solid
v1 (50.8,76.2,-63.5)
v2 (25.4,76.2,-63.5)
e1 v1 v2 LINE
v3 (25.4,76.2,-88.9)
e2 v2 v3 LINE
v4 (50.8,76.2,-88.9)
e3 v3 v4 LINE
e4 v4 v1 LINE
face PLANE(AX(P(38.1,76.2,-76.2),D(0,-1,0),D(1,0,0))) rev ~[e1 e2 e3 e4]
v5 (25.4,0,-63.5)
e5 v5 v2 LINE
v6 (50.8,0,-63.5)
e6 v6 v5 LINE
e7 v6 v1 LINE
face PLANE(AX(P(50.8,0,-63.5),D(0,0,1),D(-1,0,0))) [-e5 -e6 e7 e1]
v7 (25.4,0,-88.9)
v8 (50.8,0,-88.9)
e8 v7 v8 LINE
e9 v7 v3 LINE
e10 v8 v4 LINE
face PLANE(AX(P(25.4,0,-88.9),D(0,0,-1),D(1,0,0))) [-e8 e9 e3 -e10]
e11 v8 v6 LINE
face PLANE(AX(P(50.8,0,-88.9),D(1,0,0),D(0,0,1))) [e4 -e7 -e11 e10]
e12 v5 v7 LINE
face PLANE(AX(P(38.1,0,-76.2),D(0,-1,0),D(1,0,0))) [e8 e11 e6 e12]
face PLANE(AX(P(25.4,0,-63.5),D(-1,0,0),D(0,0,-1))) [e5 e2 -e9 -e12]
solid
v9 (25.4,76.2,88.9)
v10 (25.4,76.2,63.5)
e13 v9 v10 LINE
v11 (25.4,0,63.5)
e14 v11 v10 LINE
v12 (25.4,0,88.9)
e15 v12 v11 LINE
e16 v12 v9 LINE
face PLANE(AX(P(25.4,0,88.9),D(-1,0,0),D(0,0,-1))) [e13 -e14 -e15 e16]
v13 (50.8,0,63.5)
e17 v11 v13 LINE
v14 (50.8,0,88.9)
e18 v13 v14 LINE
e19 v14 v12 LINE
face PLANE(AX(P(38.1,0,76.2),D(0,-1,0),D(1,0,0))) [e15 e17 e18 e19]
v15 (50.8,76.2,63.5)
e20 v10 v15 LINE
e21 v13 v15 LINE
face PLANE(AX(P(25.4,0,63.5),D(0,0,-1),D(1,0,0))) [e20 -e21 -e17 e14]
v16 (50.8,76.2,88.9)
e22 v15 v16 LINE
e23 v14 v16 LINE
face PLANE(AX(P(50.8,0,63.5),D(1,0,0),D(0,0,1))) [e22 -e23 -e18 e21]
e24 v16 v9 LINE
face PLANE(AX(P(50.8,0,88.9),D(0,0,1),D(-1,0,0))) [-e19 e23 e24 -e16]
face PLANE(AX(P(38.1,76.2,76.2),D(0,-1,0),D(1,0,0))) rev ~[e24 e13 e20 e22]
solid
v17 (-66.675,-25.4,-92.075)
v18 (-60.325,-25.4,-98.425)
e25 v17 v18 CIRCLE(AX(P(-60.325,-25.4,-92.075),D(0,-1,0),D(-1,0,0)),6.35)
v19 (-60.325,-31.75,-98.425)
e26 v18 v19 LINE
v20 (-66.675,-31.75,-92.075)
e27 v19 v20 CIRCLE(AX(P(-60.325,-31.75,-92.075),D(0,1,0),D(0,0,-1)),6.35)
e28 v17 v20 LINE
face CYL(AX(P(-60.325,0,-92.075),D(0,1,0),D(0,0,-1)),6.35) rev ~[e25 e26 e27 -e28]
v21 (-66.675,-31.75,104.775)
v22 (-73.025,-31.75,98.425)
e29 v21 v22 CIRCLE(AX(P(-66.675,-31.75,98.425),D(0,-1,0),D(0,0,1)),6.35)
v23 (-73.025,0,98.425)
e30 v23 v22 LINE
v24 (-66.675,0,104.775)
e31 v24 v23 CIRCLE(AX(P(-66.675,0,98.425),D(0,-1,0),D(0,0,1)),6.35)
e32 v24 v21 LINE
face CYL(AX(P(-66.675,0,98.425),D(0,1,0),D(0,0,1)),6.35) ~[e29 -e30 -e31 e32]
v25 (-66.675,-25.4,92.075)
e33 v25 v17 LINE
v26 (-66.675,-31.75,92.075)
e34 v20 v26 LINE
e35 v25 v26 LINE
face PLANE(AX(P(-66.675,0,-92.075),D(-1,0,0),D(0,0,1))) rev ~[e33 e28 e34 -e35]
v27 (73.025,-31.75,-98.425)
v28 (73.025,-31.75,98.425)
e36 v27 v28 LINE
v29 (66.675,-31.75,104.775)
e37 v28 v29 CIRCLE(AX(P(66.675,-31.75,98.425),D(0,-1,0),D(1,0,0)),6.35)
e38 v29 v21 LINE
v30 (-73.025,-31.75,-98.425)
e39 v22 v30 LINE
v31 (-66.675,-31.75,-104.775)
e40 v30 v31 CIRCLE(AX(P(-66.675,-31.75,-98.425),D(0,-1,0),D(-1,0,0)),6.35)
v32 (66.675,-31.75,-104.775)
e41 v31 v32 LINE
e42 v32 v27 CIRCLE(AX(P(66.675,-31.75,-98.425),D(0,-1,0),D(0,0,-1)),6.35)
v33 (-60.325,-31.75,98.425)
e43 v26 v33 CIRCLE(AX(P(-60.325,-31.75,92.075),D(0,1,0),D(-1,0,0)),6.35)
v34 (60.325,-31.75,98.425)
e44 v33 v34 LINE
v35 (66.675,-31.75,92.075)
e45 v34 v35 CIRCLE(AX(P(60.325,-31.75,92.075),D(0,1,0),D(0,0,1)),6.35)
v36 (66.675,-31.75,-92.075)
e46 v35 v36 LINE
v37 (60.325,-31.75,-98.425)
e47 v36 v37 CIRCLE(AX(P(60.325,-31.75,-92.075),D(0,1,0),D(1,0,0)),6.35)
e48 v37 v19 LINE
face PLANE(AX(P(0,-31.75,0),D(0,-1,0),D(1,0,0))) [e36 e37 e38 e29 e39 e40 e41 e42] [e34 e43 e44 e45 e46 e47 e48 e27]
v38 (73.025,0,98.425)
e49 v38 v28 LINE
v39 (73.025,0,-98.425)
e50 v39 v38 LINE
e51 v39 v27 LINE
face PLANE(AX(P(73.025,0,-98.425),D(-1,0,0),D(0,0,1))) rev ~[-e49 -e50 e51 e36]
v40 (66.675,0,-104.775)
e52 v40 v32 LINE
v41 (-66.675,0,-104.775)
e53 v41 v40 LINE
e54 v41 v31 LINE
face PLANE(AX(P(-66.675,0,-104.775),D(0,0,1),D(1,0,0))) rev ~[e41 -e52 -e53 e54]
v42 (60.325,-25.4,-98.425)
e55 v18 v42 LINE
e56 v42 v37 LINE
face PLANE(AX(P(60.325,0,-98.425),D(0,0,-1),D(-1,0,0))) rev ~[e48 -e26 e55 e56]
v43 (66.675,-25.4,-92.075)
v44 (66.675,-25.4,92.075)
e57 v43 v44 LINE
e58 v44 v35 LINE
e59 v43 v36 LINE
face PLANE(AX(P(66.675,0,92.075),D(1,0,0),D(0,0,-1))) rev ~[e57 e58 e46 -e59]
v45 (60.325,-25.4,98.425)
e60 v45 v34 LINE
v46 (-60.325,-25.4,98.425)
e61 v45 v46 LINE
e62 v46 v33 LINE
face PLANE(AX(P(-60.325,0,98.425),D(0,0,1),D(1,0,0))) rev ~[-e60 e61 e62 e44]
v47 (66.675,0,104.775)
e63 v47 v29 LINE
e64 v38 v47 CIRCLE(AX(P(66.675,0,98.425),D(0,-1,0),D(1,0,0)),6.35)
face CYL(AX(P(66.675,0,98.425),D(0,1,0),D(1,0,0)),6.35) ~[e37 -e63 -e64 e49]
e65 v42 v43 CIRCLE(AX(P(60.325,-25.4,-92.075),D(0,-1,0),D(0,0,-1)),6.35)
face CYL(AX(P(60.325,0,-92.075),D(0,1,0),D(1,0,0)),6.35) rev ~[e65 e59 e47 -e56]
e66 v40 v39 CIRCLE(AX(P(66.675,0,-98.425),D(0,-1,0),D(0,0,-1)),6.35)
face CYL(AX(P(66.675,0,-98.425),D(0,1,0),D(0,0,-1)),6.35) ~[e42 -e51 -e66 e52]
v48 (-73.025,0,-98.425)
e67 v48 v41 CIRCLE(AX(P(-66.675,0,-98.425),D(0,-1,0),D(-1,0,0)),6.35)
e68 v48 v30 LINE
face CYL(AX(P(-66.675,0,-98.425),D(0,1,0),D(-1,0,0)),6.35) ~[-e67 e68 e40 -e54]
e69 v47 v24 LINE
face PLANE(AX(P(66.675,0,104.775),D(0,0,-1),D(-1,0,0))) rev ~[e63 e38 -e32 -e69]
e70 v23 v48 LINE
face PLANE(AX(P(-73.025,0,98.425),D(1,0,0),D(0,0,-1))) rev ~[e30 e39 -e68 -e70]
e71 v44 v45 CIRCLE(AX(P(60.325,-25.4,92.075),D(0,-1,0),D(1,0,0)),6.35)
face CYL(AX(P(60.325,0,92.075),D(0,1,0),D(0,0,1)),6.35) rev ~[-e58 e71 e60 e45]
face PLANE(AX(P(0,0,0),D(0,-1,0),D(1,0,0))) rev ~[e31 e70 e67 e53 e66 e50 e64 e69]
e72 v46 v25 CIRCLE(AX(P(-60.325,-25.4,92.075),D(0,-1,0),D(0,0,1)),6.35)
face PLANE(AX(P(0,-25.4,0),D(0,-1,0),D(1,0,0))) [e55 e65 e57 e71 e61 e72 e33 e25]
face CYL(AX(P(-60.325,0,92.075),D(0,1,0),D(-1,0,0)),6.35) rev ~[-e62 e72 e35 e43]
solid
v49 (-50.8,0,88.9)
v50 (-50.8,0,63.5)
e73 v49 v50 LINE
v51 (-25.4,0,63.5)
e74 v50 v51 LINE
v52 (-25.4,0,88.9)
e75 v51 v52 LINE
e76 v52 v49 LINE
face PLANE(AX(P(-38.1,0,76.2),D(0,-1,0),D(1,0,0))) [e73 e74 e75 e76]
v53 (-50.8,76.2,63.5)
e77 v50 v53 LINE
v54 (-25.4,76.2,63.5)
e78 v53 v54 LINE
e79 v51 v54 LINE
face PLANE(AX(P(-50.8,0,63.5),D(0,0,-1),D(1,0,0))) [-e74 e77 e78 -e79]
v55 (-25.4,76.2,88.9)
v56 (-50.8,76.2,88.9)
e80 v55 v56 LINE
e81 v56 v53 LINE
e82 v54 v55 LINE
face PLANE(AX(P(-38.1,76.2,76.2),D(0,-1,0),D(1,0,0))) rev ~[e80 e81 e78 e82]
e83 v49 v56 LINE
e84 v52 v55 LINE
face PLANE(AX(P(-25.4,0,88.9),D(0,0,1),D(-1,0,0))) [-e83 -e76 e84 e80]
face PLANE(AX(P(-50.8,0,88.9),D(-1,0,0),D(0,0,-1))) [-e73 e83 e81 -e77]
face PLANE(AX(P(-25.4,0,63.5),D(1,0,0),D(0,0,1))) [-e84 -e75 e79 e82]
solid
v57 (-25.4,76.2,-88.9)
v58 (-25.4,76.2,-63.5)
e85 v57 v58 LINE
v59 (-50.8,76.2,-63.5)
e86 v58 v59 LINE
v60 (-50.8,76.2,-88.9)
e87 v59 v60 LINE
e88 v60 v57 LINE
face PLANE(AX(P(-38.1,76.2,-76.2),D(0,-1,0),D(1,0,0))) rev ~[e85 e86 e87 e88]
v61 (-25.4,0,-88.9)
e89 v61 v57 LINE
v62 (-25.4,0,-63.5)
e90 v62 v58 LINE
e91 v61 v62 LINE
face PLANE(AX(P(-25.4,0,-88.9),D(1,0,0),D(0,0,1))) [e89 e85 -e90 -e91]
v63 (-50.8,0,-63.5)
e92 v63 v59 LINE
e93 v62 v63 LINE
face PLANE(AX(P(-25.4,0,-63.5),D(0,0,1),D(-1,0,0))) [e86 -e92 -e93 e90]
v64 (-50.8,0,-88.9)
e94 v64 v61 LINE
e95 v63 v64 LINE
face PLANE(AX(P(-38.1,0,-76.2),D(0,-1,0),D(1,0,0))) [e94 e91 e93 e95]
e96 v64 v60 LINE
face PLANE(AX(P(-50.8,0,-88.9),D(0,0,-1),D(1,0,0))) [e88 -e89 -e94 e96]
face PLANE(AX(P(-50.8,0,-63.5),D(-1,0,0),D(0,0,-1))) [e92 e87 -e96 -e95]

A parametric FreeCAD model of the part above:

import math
import FreeCAD as App
import Part
import Sketcher
Q = App.Units.Quantity

doc = App.newDocument("Part")
body = doc.addObject("PartDesign::Body", "Body")

sketch1 = body.newObject("Sketcher::SketchObject", "Sketch")
sketch1.AttachmentSupport = (doc.getObject("XZ_Plane"), [""])
sketch1.MapMode = "FlatFace"
sketch1.addGeometry([
    Part.ArcOfCircle(Part.Circle(App.Vector(60.325, 92.075, 0), App.Vector(0, 0, 1), 6.35), math.radians(0), math.radians(90)),
    Part.LineSegment(App.Vector(60.325, 98.425, 0), App.Vector(-60.325, 98.425, 0)),
    Part.ArcOfCircle(Part.Circle(App.Vector(-60.325, 92.075, 0), App.Vector(0, 0, 1), 6.35), math.radians(90), math.radians(180)),
    Part.LineSegment(App.Vector(-66.675, 92.075, 0), App.Vector(-66.675, -92.075, 0)),
    Part.ArcOfCircle(Part.Circle(App.Vector(-60.325, -92.075, 0), App.Vector(0, 0, 1), 6.35), math.radians(180), math.radians(270)),
    Part.LineSegment(App.Vector(-60.325, -98.425, 0), App.Vector(60.325, -98.425, 0)),
    Part.ArcOfCircle(Part.Circle(App.Vector(60.325, -92.075, 0), App.Vector(0, 0, 1), 6.35), math.radians(-90), math.radians(0)),
    Part.LineSegment(App.Vector(66.675, -92.075, 0), App.Vector(66.675, 92.075, 0)),
], False)
sketch1.addConstraint([
    Sketcher.Constraint("Tangent", 0, 2, 1, 1),
    Sketcher.Constraint("Tangent", 1, 2, 2, 1),
    Sketcher.Constraint("Tangent", 2, 2, 3, 1),
    Sketcher.Constraint("Tangent", 3, 2, 4, 1),
    Sketcher.Constraint("Tangent", 4, 2, 5, 1),
    Sketcher.Constraint("Tangent", 5, 2, 6, 1),
    Sketcher.Constraint("Tangent", 6, 2, 7, 1),
    Sketcher.Constraint("Tangent", 7, 2, 0, 1),
    Sketcher.Constraint("Horizontal", 1),
    Sketcher.Constraint("Vertical", 3),
    Sketcher.Constraint("Horizontal", 5),
    Sketcher.Constraint("Vertical", 7),
    Sketcher.Constraint("Equal", 0, 2),
    Sketcher.Constraint("Equal", 2, 4),
    Sketcher.Constraint("Equal", 4, 6),
    Sketcher.Constraint("Symmetric", 0, 3, 4, 3, -1, 1),
    Sketcher.Constraint("Radius", 0, Q("0.25 in")),
    Sketcher.Constraint("DistanceX", 2, 2, 0, 3, Q("5 in")),
    Sketcher.Constraint("DistanceY", 3, 2, 3, 1, Q("7.25 in")),
])
pad1 = body.newObject("PartDesign::Pad", "Pad")
pad1.Profile = sketch1
pad1.Length = Q("1 in")

sketch2 = body.newObject("Sketcher::SketchObject", "Sketch001")
sketch2.AttachmentSupport = (doc.getObject("XZ_Plane"), [""])
sketch2.MapMode = "FlatFace"
sketch2.addGeometry([
    Part.ArcOfCircle(Part.Circle(App.Vector(-66.675, -98.425, 0), App.Vector(0, 0, 1), 6.35), math.radians(180), math.radians(270)),
    Part.LineSegment(App.Vector(-66.675, -104.775, 0), App.Vector(66.675, -104.775, 0)),
    Part.ArcOfCircle(Part.Circle(App.Vector(66.675, -98.425, 0), App.Vector(0, 0, 1), 6.35), math.radians(-90), math.radians(0)),
    Part.LineSegment(App.Vector(73.025, -98.425, 0), App.Vector(73.025, 98.425, 0)),
    Part.ArcOfCircle(Part.Circle(App.Vector(66.675, 98.425, 0), App.Vector(0, 0, 1), 6.35), math.radians(0), math.radians(90)),
    Part.LineSegment(App.Vector(66.675, 104.775, 0), App.Vector(-66.675, 104.775, 0)),
    Part.ArcOfCircle(Part.Circle(App.Vector(-66.675, 98.425, 0), App.Vector(0, 0, 1), 6.35), math.radians(90), math.radians(180)),
    Part.LineSegment(App.Vector(-73.025, 98.425, 0), App.Vector(-73.025, -98.425, 0)),
    Part.ArcOfCircle(Part.Circle(App.Vector(-60.325, 92.075, 0), App.Vector(0, 0, 1), 6.35), math.radians(90), math.radians(180)),
    Part.LineSegment(App.Vector(-60.325, 98.425, 0), App.Vector(60.325, 98.425, 0)),
    Part.ArcOfCircle(Part.Circle(App.Vector(60.325, 92.075, 0), App.Vector(0, 0, 1), 6.35), math.radians(0), math.radians(90)),
    Part.LineSegment(App.Vector(66.675, 92.075, 0), App.Vector(66.675, -92.075, 0)),
    Part.ArcOfCircle(Part.Circle(App.Vector(60.325, -92.075, 0), App.Vector(0, 0, 1), 6.35), math.radians(-90), math.radians(0)),
    Part.LineSegment(App.Vector(60.325, -98.425, 0), App.Vector(-60.325, -98.425, 0)),
    Part.ArcOfCircle(Part.Circle(App.Vector(-60.325, -92.075, 0), App.Vector(0, 0, 1), 6.35), math.radians(180), math.radians(270)),
    Part.LineSegment(App.Vector(-66.675, -92.075, 0), App.Vector(-66.675, 92.075, 0)),
], False)
sketch2.addConstraint([
    Sketcher.Constraint("Tangent", 0, 2, 1, 1),
    Sketcher.Constraint("Tangent", 1, 2, 2, 1),
    Sketcher.Constraint("Tangent", 2, 2, 3, 1),
    Sketcher.Constraint("Tangent", 3, 2, 4, 1),
    Sketcher.Constraint("Tangent", 4, 2, 5, 1),
    Sketcher.Constraint("Tangent", 5, 2, 6, 1),
    Sketcher.Constraint("Tangent", 6, 2, 7, 1),
    Sketcher.Constraint("Tangent", 7, 2, 0, 1),
    Sketcher.Constraint("Tangent", 8, 1, 9, 1),
    Sketcher.Constraint("Tangent", 9, 2, 10, 2),
    Sketcher.Constraint("Tangent", 10, 1, 11, 1),
    Sketcher.Constraint("Tangent", 11, 2, 12, 2),
    Sketcher.Constraint("Tangent", 12, 1, 13, 1),
    Sketcher.Constraint("Tangent", 13, 2, 14, 2),
    Sketcher.Constraint("Tangent", 14, 1, 15, 1),
    Sketcher.Constraint("Tangent", 15, 2, 8, 2),
    Sketcher.Constraint("Horizontal", 1),
    Sketcher.Constraint("Vertical", 3),
    Sketcher.Constraint("Horizontal", 5),
    Sketcher.Constraint("Vertical", 7),
    Sketcher.Constraint("Horizontal", 9),
    Sketcher.Constraint("Vertical", 11),
    Sketcher.Constraint("Horizontal", 13),
    Sketcher.Constraint("Vertical", 15),
    Sketcher.Constraint("Equal", 0, 2),
    Sketcher.Constraint("Equal", 2, 4),
    Sketcher.Constraint("Equal", 4, 6),
    Sketcher.Constraint("Equal", 6, 8),
    Sketcher.Constraint("Equal", 8, 10),
    Sketcher.Constraint("Equal", 10, 12),
    Sketcher.Constraint("Equal", 12, 14),
    Sketcher.Constraint("Symmetric", 0, 3, 4, 3, -1, 1),
    Sketcher.Constraint("Symmetric", 8, 3, 12, 3, -1, 1),
    Sketcher.Constraint("Horizontal", 6, 2, 8, 1),
    Sketcher.Constraint("Vertical", 4, 2, 10, 1),
    Sketcher.Constraint("Radius", 0, Q("0.25 in")),
    Sketcher.Constraint("DistanceX", 8, 3, 4, 3, Q("5 in")),
    Sketcher.Constraint("DistanceY", 3, 1, 3, 2, Q("7.75 in")),
])
pad2 = body.newObject("PartDesign::Pad", "Pad001")
pad2.Profile = sketch2
pad2.Length = Q("1.25 in")
body2 = doc.addObject("PartDesign::Body", "Body001")

sketch3 = body2.newObject("Sketcher::SketchObject", "Sketch002")
sketch3.AttachmentSupport = (doc.getObject("XZ_Plane001"), [""])
sketch3.MapMode = "FlatFace"
sketch3.addGeometry([
    Part.LineSegment(App.Vector(-25.4, 63.5, 0), App.Vector(-25.4, 88.9, 0)),
    Part.LineSegment(App.Vector(-25.4, 88.9, 0), App.Vector(-50.8, 88.9, 0)),
    Part.LineSegment(App.Vector(-50.8, 88.9, 0), App.Vector(-50.8, 63.5, 0)),
    Part.LineSegment(App.Vector(-50.8, 63.5, 0), App.Vector(-25.4, 63.5, 0)),
], False)
sketch3.addConstraint([
    Sketcher.Constraint("Coincident", 0, 2, 1, 1),
    Sketcher.Constraint("Coincident", 1, 2, 2, 1),
    Sketcher.Constraint("Coincident", 2, 2, 3, 1),
    Sketcher.Constraint("Coincident", 3, 2, 0, 1),
    Sketcher.Constraint("Vertical", 0),
    Sketcher.Constraint("Horizontal", 1),
    Sketcher.Constraint("Vertical", 2),
    Sketcher.Constraint("Horizontal", 3),
    Sketcher.Constraint("Equal", 3, 0),
    Sketcher.Constraint("DistanceX", 1, 2, 1, 1, Q("1 in")),
    Sketcher.Constraint("DistanceX", 0, 2, -1, 1, Q("1 in")),
    Sketcher.Constraint("DistanceY", -1, 1, 0, 2, Q("3.5 in")),
])
pad3 = body2.newObject("PartDesign::Pad", "Pad002")
pad3.Profile = sketch3
pad3.Length = Q("3 in")
pad3.Reversed = True
body3 = doc.addObject("PartDesign::Body", "Body002")

sketch4 = body3.newObject("Sketcher::SketchObject", "Sketch003")
sketch4.AttachmentSupport = (doc.getObject("XZ_Plane002"), [""])
sketch4.MapMode = "FlatFace"
sketch4.addGeometry([
    Part.LineSegment(App.Vector(25.4, 88.9, 0), App.Vector(25.4, 63.5, 0)),
    Part.LineSegment(App.Vector(25.4, 63.5, 0), App.Vector(50.8, 63.5, 0)),
    Part.LineSegment(App.Vector(50.8, 63.5, 0), App.Vector(50.8, 88.9, 0)),
    Part.LineSegment(App.Vector(50.8, 88.9, 0), App.Vector(25.4, 88.9, 0)),
], False)
sketch4.addConstraint([
    Sketcher.Constraint("Coincident", 0, 2, 1, 1),
    Sketcher.Constraint("Coincident", 1, 2, 2, 1),
    Sketcher.Constraint("Coincident", 2, 2, 3, 1),
    Sketcher.Constraint("Coincident", 3, 2, 0, 1),
    Sketcher.Constraint("Vertical", 0),
    Sketcher.Constraint("Horizontal", 1),
    Sketcher.Constraint("Vertical", 2),
    Sketcher.Constraint("Horizontal", 3),
    Sketcher.Constraint("Equal", 3, 0),
    Sketcher.Constraint("DistanceX", 1, 1, 1, 2, Q("1 in")),
    Sketcher.Constraint("DistanceX", -1, 1, 0, 2, Q("1 in")),
    Sketcher.Constraint("DistanceY", -1, 1, 0, 2, Q("2.5 in")),
])
pad4 = body3.newObject("PartDesign::Pad", "Pad003")
pad4.Profile = sketch4
pad4.Length = Q("3 in")
pad4.Reversed = True
body4 = doc.addObject("PartDesign::Body", "Body003")

sketch5 = body4.newObject("Sketcher::SketchObject", "Sketch004")
sketch5.AttachmentSupport = (doc.getObject("XZ_Plane003"), [""])
sketch5.MapMode = "FlatFace"
sketch5.addGeometry([
    Part.LineSegment(App.Vector(25.4, -63.5, 0), App.Vector(25.4, -88.9, 0)),
    Part.LineSegment(App.Vector(25.4, -88.9, 0), App.Vector(50.8, -88.9, 0)),
    Part.LineSegment(App.Vector(50.8, -88.9, 0), App.Vector(50.8, -63.5, 0)),
    Part.LineSegment(App.Vector(50.8, -63.5, 0), App.Vector(25.4, -63.5, 0)),
], False)
sketch5.addConstraint([
    Sketcher.Constraint("Coincident", 0, 2, 1, 1),
    Sketcher.Constraint("Coincident", 1, 2, 2, 1),
    Sketcher.Constraint("Coincident", 2, 2, 3, 1),
    Sketcher.Constraint("Coincident", 3, 2, 0, 1),
    Sketcher.Constraint("Vertical", 0),
    Sketcher.Constraint("Horizontal", 1),
    Sketcher.Constraint("Vertical", 2),
    Sketcher.Constraint("Horizontal", 3),
    Sketcher.Constraint("Equal", 3, 0),
    Sketcher.Constraint("DistanceX", 1, 1, 1, 2, Q("1 in")),
    Sketcher.Constraint("DistanceX", -1, 1, 0, 2, Q("1 in")),
    Sketcher.Constraint("DistanceY", 0, 2, -1, 1, Q("3.5 in")),
])
pad5 = body4.newObject("PartDesign::Pad", "Pad004")
pad5.Profile = sketch5
pad5.Length = Q("3 in")
pad5.Reversed = True
body5 = doc.addObject("PartDesign::Body", "Body004")

sketch6 = body5.newObject("Sketcher::SketchObject", "Sketch005")
sketch6.AttachmentSupport = (doc.getObject("XZ_Plane004"), [""])
sketch6.MapMode = "FlatFace"
sketch6.addGeometry([
    Part.LineSegment(App.Vector(-25.4, -88.9, 0), App.Vector(-25.4, -63.5, 0)),
    Part.LineSegment(App.Vector(-25.4, -63.5, 0), App.Vector(-50.8, -63.5, 0)),
    Part.LineSegment(App.Vector(-50.8, -63.5, 0), App.Vector(-50.8, -88.9, 0)),
    Part.LineSegment(App.Vector(-50.8, -88.9, 0), App.Vector(-25.4, -88.9, 0)),
], False)
sketch6.addConstraint([
    Sketcher.Constraint("Coincident", 0, 2, 1, 1),
    Sketcher.Constraint("Coincident", 1, 2, 2, 1),
    Sketcher.Constraint("Coincident", 2, 2, 3, 1),
    Sketcher.Constraint("Coincident", 3, 2, 0, 1),
    Sketcher.Constraint("Vertical", 0),
    Sketcher.Constraint("Horizontal", 1),
    Sketcher.Constraint("Vertical", 2),
    Sketcher.Constraint("Horizontal", 3),
    Sketcher.Constraint("Equal", 3, 0),
    Sketcher.Constraint("DistanceX", 1, 2, 1, 1, Q("1 in")),
    Sketcher.Constraint("DistanceX", 0, 2, -1, 1, Q("1 in")),
    Sketcher.Constraint("DistanceY", 0, 2, -1, 1, Q("2.5 in")),
])
pad6 = body5.newObject("PartDesign::Pad", "Pad005")
pad6.Profile = sketch6
pad6.Length = Q("3 in")
pad6.Reversed = True

doc.recompute()
